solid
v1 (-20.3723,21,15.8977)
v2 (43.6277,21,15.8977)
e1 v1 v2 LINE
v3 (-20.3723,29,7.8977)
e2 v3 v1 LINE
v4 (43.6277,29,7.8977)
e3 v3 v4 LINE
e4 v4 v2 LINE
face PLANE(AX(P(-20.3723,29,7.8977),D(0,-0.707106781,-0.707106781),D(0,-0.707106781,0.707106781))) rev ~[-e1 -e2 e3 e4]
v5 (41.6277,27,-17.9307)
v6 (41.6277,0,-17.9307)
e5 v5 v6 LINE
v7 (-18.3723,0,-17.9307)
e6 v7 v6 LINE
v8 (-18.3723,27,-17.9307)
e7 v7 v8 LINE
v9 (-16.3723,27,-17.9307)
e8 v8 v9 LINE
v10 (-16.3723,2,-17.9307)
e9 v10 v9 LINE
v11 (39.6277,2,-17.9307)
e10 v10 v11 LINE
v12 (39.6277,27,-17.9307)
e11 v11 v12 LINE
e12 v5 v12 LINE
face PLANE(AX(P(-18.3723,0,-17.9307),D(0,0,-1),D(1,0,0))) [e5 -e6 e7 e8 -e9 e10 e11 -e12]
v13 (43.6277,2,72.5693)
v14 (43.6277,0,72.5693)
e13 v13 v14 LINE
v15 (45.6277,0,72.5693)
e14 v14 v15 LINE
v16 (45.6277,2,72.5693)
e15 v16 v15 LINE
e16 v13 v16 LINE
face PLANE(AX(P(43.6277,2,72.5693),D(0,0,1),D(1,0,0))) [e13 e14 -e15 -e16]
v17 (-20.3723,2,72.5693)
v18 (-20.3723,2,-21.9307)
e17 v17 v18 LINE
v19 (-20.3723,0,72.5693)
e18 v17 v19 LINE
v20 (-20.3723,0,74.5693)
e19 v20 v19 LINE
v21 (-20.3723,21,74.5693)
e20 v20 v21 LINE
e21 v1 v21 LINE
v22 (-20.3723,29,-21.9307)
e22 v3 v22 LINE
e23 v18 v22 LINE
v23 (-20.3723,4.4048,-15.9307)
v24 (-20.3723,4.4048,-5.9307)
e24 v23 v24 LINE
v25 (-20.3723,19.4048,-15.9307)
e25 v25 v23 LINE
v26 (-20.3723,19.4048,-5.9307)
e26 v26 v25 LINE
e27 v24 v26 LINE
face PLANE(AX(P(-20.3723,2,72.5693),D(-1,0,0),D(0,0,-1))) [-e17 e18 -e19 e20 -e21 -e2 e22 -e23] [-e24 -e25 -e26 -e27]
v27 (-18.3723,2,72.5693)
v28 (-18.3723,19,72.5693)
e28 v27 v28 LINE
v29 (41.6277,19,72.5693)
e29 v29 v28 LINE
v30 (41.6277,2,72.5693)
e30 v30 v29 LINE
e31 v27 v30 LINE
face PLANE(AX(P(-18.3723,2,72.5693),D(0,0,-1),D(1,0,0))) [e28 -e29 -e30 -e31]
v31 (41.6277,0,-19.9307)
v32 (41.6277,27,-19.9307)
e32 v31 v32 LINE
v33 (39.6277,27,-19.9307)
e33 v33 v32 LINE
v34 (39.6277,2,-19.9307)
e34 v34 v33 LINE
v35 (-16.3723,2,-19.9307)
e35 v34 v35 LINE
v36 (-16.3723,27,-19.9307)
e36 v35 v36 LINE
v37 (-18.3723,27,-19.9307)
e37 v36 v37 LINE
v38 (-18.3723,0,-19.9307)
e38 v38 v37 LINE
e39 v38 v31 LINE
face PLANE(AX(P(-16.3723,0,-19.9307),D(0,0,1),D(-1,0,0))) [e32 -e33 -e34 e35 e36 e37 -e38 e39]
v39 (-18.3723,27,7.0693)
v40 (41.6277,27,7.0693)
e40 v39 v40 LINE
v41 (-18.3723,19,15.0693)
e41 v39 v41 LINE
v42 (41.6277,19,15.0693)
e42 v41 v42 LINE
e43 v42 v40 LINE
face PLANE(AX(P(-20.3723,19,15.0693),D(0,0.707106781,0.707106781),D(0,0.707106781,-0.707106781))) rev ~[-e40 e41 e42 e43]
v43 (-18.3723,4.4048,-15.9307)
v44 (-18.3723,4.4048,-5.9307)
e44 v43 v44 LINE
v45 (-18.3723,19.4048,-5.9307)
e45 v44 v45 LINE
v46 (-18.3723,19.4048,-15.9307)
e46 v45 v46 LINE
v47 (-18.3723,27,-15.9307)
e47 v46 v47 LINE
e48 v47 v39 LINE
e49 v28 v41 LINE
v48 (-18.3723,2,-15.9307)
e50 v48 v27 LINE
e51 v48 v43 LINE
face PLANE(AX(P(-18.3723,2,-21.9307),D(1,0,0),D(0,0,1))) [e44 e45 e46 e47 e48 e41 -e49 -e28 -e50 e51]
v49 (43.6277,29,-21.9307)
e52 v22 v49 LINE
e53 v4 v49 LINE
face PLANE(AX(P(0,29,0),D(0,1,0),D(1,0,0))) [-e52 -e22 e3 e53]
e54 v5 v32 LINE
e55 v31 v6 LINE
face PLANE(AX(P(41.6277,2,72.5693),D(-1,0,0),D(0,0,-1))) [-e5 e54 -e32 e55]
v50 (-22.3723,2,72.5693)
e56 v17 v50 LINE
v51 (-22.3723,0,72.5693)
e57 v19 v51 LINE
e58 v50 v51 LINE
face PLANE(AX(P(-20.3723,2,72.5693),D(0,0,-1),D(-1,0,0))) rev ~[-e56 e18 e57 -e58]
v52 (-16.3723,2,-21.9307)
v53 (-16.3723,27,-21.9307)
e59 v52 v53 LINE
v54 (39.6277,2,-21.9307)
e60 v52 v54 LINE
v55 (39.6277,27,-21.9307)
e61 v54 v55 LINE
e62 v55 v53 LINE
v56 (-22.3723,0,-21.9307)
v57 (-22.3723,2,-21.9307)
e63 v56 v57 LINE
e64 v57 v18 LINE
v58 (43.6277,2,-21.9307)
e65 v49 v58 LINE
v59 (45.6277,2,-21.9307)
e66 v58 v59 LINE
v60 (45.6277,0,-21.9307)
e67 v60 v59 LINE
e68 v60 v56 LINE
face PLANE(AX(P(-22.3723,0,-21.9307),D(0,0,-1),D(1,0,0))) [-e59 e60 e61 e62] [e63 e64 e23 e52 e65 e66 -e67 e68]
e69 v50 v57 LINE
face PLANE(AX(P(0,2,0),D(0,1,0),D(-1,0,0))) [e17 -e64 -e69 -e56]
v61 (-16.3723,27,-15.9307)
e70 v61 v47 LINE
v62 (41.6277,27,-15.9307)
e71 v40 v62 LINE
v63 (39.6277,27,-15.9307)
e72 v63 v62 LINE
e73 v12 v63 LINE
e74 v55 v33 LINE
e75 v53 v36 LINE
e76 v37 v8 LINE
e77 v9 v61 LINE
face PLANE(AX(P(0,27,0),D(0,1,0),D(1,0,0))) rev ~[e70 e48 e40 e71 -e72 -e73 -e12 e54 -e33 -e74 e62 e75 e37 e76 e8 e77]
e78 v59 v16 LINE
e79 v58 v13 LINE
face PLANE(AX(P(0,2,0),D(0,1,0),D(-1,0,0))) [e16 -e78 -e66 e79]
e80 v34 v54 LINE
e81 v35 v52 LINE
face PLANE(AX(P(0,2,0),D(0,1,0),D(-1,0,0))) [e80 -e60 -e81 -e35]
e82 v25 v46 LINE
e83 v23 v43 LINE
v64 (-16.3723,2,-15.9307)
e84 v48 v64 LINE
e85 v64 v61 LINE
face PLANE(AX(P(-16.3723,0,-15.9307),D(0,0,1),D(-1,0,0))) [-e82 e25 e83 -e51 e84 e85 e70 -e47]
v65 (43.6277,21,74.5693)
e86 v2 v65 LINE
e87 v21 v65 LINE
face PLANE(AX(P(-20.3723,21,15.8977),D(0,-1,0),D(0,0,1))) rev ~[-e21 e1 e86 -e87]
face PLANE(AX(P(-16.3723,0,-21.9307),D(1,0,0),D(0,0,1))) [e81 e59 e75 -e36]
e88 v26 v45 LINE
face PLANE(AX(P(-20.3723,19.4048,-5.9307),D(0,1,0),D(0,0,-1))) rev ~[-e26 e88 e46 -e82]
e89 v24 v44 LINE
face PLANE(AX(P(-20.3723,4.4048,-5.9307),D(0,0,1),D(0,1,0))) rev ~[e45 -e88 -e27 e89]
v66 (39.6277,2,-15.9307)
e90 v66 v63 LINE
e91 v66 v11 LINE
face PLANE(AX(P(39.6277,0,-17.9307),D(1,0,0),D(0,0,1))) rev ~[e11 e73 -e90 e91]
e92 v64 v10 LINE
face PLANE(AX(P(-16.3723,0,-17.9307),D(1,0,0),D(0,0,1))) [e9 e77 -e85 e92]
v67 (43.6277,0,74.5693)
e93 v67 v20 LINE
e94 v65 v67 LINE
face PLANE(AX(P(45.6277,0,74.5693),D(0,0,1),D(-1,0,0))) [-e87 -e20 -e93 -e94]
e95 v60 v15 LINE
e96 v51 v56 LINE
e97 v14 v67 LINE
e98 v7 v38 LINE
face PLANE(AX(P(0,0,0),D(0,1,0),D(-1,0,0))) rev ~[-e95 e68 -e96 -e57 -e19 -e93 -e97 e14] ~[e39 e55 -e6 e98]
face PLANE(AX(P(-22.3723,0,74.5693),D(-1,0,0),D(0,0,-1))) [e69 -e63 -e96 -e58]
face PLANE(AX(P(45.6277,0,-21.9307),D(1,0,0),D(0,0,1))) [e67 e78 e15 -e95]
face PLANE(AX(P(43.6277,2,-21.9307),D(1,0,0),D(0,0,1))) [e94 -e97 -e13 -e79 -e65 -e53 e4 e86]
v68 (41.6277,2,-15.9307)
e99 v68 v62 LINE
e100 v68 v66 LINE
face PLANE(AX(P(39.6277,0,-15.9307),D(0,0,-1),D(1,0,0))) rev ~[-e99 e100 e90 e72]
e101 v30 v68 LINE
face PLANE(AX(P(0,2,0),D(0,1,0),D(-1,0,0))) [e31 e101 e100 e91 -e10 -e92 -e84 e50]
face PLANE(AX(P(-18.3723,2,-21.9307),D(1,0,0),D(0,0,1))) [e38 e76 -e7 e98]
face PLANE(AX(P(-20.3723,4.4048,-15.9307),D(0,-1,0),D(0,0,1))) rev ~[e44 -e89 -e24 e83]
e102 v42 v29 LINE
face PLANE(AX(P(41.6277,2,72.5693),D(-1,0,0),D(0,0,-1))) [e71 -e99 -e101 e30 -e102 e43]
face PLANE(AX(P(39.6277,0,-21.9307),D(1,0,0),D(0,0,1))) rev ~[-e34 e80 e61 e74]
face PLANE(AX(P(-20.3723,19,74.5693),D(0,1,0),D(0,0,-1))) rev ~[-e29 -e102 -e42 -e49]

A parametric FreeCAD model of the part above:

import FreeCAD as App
import Part
import Sketcher
Q = App.Units.Quantity


def add_polygon(sketch, points):
    """Adds a closed chain of lines whose ends are joined by coincident constraints."""
    first, n = sketch.GeometryCount, len(points)
    for a, b in zip(points, points[1:] + points[:1]):
        sketch.addGeometry(Part.LineSegment(App.Vector(*a, 0), App.Vector(*b, 0)), False)
    for i in range(n):
        sketch.addConstraint(Sketcher.Constraint("Coincident", first + i, 2, first + (i + 1) % n, 1))

doc = App.newDocument("Part")
body = doc.addObject("PartDesign::Body", "Body")

sketch1 = body.newObject("Sketcher::SketchObject", "Sketch")
sketch1.AttachmentSupport = (doc.getObject("XZ_Plane"), [""])
sketch1.MapMode = "FlatFace"
add_polygon(sketch1, [(46, -22), (-22, -22), (-22, 75), (46, 75)])
sketch1.addConstraint([
    Sketcher.Constraint("Horizontal", 0),
    Sketcher.Constraint("Vertical", 1),
    Sketcher.Constraint("Horizontal", 2),
    Sketcher.Constraint("Vertical", 3),
    Sketcher.Constraint("DistanceX", 0, 2, 0, 1, Q("68 mm")),
    Sketcher.Constraint("DistanceY", 1, 1, 1, 2, Q("96.5 mm")),
    Sketcher.Constraint("DistanceX", 0, 2, -1, 1, Q("22.3723 mm")),
    Sketcher.Constraint("DistanceY", 0, 2, -1, 1, Q("21.9307 mm")),
])
pad1 = body.newObject("PartDesign::Pad", "Pad")
pad1.Profile = sketch1
pad1.Length = 2
pad1.Reversed = True

sketch2 = body.newObject("Sketcher::SketchObject", "Sketch001")
sketch2.AttachmentSupport = (doc.getObject("XZ_Plane"), [""])
sketch2.MapMode = "FlatFace"
sketch2.AttachmentOffset = App.Placement(App.Vector(0, 0, -2), App.Rotation())
add_polygon(sketch2, [(-18.4, -21.9), (-20.4, -21.9), (-20.4, 74.6), (43.6, 74.6), (43.6, -21.9), (41.6, -21.9), (41.6, 72.6), (-18.4, 72.6)])
sketch2.addConstraint([
    Sketcher.Constraint("Horizontal", 0),
    Sketcher.Constraint("Vertical", 1),
    Sketcher.Constraint("Horizontal", 2),
    Sketcher.Constraint("Vertical", 3),
    Sketcher.Constraint("Horizontal", 4),
    Sketcher.Constraint("Vertical", 5),
    Sketcher.Constraint("Horizontal", 6),
    Sketcher.Constraint("Vertical", 7),
    Sketcher.Constraint("Horizontal", 0, 2, 3, 2),
    Sketcher.Constraint("Equal", 0, 4),
    Sketcher.Constraint("DistanceX", 0, 2, 0, 1, Q("2 mm")),
    Sketcher.Constraint("DistanceY", 5, 2, 2, 2, Q("2 mm")),
    Sketcher.Constraint("DistanceX", 2, 1, 2, 2, Q("64 mm")),
    Sketcher.Constraint("DistanceY", 1, 1, 1, 2, Q("96.5 mm")),
    Sketcher.Constraint("DistanceX", 0, 2, -1, 1, Q("20.3723 mm")),
    Sketcher.Constraint("DistanceY", 0, 2, -1, 1, Q("21.9307 mm")),
])
pad2 = body.newObject("PartDesign::Pad", "Pad001")
pad2.Profile = sketch2
pad2.Length = 25
pad2.Reversed = True

sketch3 = body.newObject("Sketcher::SketchObject", "Sketch002")
sketch3.AttachmentSupport = (doc.getObject("XZ_Plane"), [""])
sketch3.MapMode = "FlatFace"
sketch3.AttachmentOffset = App.Placement(App.Vector(0, 0, -27), App.Rotation())
add_polygon(sketch3, [(44, -22), (-20, -22), (-20, 75), (44, 75)])
sketch3.addConstraint([
    Sketcher.Constraint("Horizontal", 0),
    Sketcher.Constraint("Vertical", 1),
    Sketcher.Constraint("Horizontal", 2),
    Sketcher.Constraint("Vertical", 3),
    Sketcher.Constraint("DistanceX", 0, 2, 0, 1, Q("64 mm")),
    Sketcher.Constraint("DistanceY", 1, 1, 1, 2, Q("96.5 mm")),
    Sketcher.Constraint("DistanceX", 0, 2, -1, 1, Q("20.3723 mm")),
    Sketcher.Constraint("DistanceY", 0, 2, -1, 1, Q("21.9307 mm")),
])
pad3 = body.newObject("PartDesign::Pad", "Pad002")
pad3.Profile = sketch3
pad3.Length = 2
pad3.Reversed = True

sketch4 = body.newObject("Sketcher::SketchObject", "Sketch003")
sketch4.AttachmentSupport = (doc.getObject("XZ_Plane"), [""])
sketch4.MapMode = "FlatFace"
sketch4.AttachmentOffset = App.Placement(App.Vector(0, 0, -2), App.Rotation())
add_polygon(sketch4, [(45.6, 72.6), (43.6, 72.6), (43.6, 74.6), (45.6, 74.6)])
add_polygon(sketch4, [(-22.4, 74.6), (-20.4, 74.6), (-20.4, 72.6), (-22.4, 72.6)])
sketch4.addConstraint([
    Sketcher.Constraint("Horizontal", 0),
    Sketcher.Constraint("Vertical", 1),
    Sketcher.Constraint("Horizontal", 2),
    Sketcher.Constraint("Vertical", 3),
    Sketcher.Constraint("Horizontal", 4),
    Sketcher.Constraint("Vertical", 5),
    Sketcher.Constraint("Horizontal", 6),
    Sketcher.Constraint("Vertical", 7),
    Sketcher.Constraint("Horizontal", 2, 2, 4, 2),
    Sketcher.Constraint("Horizontal", 3, 2, 5, 2),
    Sketcher.Constraint("Equal", 2, 4),
    Sketcher.Constraint("Equal", 6, 1),
    Sketcher.Constraint("DistanceX", 0, 2, 0, 1, Q("2 mm")),
    Sketcher.Constraint("DistanceX", 4, 2, 1, 2, Q("64 mm")),
    Sketcher.Constraint("DistanceX", -1, 1, 0, 2, Q("43.6277 mm")),
    Sketcher.Constraint("DistanceY", -1, 1, 0, 2, Q("72.5693 mm")),
])
pocket1 = body.newObject("PartDesign::Pocket", "Pocket")
pocket1.Profile = sketch4
pocket1.Length = 2
pocket1.Reversed = True

sketch5 = body.newObject("Sketcher::SketchObject", "Sketch004")
sketch5.AttachmentSupport = (doc.getObject("YZ_Plane"), [""])
sketch5.MapMode = "FlatFace"
sketch5.AttachmentOffset = App.Placement(App.Vector(0, 0, -20.3723), App.Rotation())
add_polygon(sketch5, [(29, 75), (29, 5), (19, 15), (19, 75)])
sketch5.addConstraint([
    Sketcher.Constraint("Vertical", 0),
    Sketcher.Constraint("Vertical", 2),
    Sketcher.Constraint("Horizontal", 3),
    Sketcher.Constraint("DistanceX", 3, 1, 3, 2, Q("10 mm")),
    Sketcher.Constraint("DistanceY", 0, 2, 1, 2, Q("10 mm")),
    Sketcher.Constraint("DistanceY", 0, 2, 0, 1, Q("69.5 mm")),
    Sketcher.Constraint("DistanceX", -1, 1, 0, 2, Q("29 mm")),
    Sketcher.Constraint("DistanceY", -1, 1, 0, 2, Q("5.0693 mm")),
])
pocket2 = body.newObject("PartDesign::Pocket", "Pocket001")
pocket2.Profile = sketch5
pocket2.Length = 64
pocket2.Reversed = True

sketch6 = body.newObject("Sketcher::SketchObject", "Sketch005")
sketch6.AttachmentSupport = (doc.getObject("YZ_Plane"), [""])
sketch6.MapMode = "FlatFace"
sketch6.AttachmentOffset = App.Placement(App.Vector(0, 0, -20.3723), App.Rotation())
add_polygon(sketch6, [(29, 5.1), (19, 15.1), (19, 74.6), (21, 74.6), (21, 15.9), (29, 7.9)])
sketch6.addConstraint([
    Sketcher.Constraint("Vertical", 1),
    Sketcher.Constraint("Horizontal", 2),
    Sketcher.Constraint("Vertical", 3),
    Sketcher.Constraint("Vertical", 5),
    Sketcher.Constraint("Parallel", 0, 4),
    Sketcher.Constraint("DistanceX", 2, 1, 2, 2, Q("2 mm")),
    Sketcher.Constraint("Angle", 0, Q("135 deg")),
    Sketcher.Constraint("DistanceY", 1, 1, 1, 2, Q("59.5 mm")),
    Sketcher.Constraint("DistanceX", -1, 1, 0, 2, Q("19 mm")),
    Sketcher.Constraint("DistanceX", -1, 1, 4, 2, Q("29 mm")),
    Sketcher.Constraint("DistanceY", 3, 2, 3, 1, Q("58.6716 mm")),
    Sketcher.Constraint("DistanceY", -1, 1, 0, 2, Q("15.0693 mm")),
])
pad4 = body.newObject("PartDesign::Pad", "Pad003")
pad4.Profile = sketch6
pad4.Length = 64

sketch7 = body.newObject("Sketcher::SketchObject", "Sketch006")
sketch7.AttachmentSupport = (doc.getObject("YZ_Plane"), [""])
sketch7.MapMode = "FlatFace"
sketch7.AttachmentOffset = App.Placement(App.Vector(0, 0, -20.3723), App.Rotation())
add_polygon(sketch7, [(19, -16), (4, -16), (4, -6), (19, -6)])
sketch7.addConstraint([
    Sketcher.Constraint("Horizontal", 0),
    Sketcher.Constraint("Vertical", 1),
    Sketcher.Constraint("Horizontal", 2),
    Sketcher.Constraint("Vertical", 3),
    Sketcher.Constraint("DistanceX", 0, 2, 0, 1, Q("15 mm")),
    Sketcher.Constraint("DistanceY", 1, 1, 1, 2, Q("10 mm")),
    Sketcher.Constraint("DistanceX", -1, 1, 0, 2, Q("4.4048 mm")),
    Sketcher.Constraint("DistanceY", 0, 2, -1, 1, Q("15.9307 mm")),
])
pocket3 = body.newObject("PartDesign::Pocket", "Pocket002")
pocket3.Profile = sketch7
pocket3.Length = 2
pocket3.Reversed = True

sketch8 = body.newObject("Sketcher::SketchObject", "Sketch007")
sketch8.AttachmentSupport = (doc.getObject("XZ_Plane"), [""])
sketch8.MapMode = "FlatFace"
add_polygon(sketch8, [(-16.4, -15.9), (-18.4, -15.9), (-18.4, -17.9), (-16.4, -17.9)])
add_polygon(sketch8, [(-16.4, -19.9), (-18.4, -19.9), (-18.4, -21.9), (-16.4, -21.9)])
add_polygon(sketch8, [(39.6, -15.9), (39.6, -17.9), (41.6, -17.9), (41.6, -15.9)])
add_polygon(sketch8, [(41.6, -19.9), (39.6, -19.9), (39.6, -21.9), (41.6, -21.9)])
sketch8.addConstraint([
    Sketcher.Constraint("Horizontal", 0),
    Sketcher.Constraint("Vertical", 1),
    Sketcher.Constraint("Horizontal", 2),
    Sketcher.Constraint("Vertical", 3),
    Sketcher.Constraint("Horizontal", 4),
    Sketcher.Constraint("Vertical", 5),
    Sketcher.Constraint("Horizontal", 6),
    Sketcher.Constraint("Vertical", 7),
    Sketcher.Constraint("Vertical", 8),
    Sketcher.Constraint("Horizontal", 9),
    Sketcher.Constraint("Vertical", 10),
    Sketcher.Constraint("Horizontal", 11),
    Sketcher.Constraint("Horizontal", 12),
    Sketcher.Constraint("Vertical", 13),
    Sketcher.Constraint("Horizontal", 14),
    Sketcher.Constraint("Vertical", 15),
    Sketcher.Constraint("Horizontal", 2, 2, 8, 2),
    Sketcher.Constraint("Horizontal", 3, 2, 10, 2),
    Sketcher.Constraint("Horizontal", 7, 2, 12, 2),
    Sketcher.Constraint("Horizontal", 6, 2, 13, 2),
    Sketcher.Constraint("Vertical", 1, 2, 4, 2),
    Sketcher.Constraint("Vertical", 3, 2, 6, 2),
    Sketcher.Constraint("Vertical", 11, 2, 12, 2),
    Sketcher.Constraint("Vertical", 10, 2, 14, 2),
    Sketcher.Constraint("Equal", 6, 9),
    Sketcher.Constraint("Equal", 14, 1),
    Sketcher.Constraint("Equal", 3, 5),
    Sketcher.Constraint("DistanceX", 0, 2, 0, 1, Q("2 mm")),
    Sketcher.Constraint("DistanceY", 4, 2, 1, 2, Q("2 mm")),
    Sketcher.Constraint("DistanceX", 2, 2, 8, 2, Q("56 mm")),
    Sketcher.Constraint("DistanceX", 0, 2, -1, 1, Q("18.3723 mm")),
    Sketcher.Constraint("DistanceY", 0, 2, -1, 1, Q("15.9307 mm")),
])
pad5 = body.newObject("PartDesign::Pad", "Pad004")
pad5.Profile = sketch8
pad5.Length = 27
pad5.Reversed = True

sketch9 = body.newObject("Sketcher::SketchObject", "Sketch008")
sketch9.AttachmentSupport = (doc.getObject("XZ_Plane"), [""])
sketch9.MapMode = "FlatFace"
add_polygon(sketch9, [(-18.4, -17.9), (-18.4, -19.9), (41.6, -19.9), (41.6, -17.9)])
sketch9.addConstraint([
    Sketcher.Constraint("Vertical", 0),
    Sketcher.Constraint("Horizontal", 1),
    Sketcher.Constraint("Vertical", 2),
    Sketcher.Constraint("Horizontal", 3),
    Sketcher.Constraint("DistanceY", 0, 2, 0, 1, Q("2 mm")),
    Sketcher.Constraint("DistanceX", 1, 1, 1, 2, Q("60 mm")),
    Sketcher.Constraint("DistanceX", 0, 2, -1, 1, Q("18.3723 mm")),
    Sketcher.Constraint("DistanceY", 0, 2, -1, 1, Q("19.9307 mm")),
])
pocket4 = body.newObject("PartDesign::Pocket", "Pocket003")
pocket4.Profile = sketch9
pocket4.Type = "UpToFirst"

doc.recompute()
